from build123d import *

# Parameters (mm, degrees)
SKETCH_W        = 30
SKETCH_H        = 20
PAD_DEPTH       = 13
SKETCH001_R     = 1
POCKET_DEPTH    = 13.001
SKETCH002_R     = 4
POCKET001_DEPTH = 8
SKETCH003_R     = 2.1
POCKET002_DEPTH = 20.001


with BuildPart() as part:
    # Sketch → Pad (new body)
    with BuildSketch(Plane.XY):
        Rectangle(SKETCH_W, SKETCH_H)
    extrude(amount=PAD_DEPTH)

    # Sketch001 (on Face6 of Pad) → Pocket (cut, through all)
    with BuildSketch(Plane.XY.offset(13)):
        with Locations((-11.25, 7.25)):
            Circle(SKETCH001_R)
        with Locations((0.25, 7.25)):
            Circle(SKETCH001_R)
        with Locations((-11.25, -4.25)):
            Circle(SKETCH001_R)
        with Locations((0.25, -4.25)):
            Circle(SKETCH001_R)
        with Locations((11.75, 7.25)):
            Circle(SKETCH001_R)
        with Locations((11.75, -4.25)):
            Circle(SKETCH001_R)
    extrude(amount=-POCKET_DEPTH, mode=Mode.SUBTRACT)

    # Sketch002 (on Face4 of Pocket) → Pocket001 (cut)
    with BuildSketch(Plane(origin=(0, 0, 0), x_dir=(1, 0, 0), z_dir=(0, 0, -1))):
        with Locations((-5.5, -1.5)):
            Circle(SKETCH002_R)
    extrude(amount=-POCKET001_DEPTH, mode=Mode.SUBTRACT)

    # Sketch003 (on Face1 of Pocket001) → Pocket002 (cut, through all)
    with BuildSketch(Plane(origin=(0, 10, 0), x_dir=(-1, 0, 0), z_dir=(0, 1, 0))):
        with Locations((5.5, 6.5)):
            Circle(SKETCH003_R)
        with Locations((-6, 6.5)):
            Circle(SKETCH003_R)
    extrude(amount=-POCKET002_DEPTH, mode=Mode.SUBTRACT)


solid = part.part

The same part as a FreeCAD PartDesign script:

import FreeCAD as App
import Part
import Sketcher
Q = App.Units.Quantity

doc = App.newDocument("Part")
body = doc.addObject("PartDesign::Body", "Body")

# Sketch on XY plane
sketch1 = body.newObject("Sketcher::SketchObject", "Sketch")
sketch1.AttachmentSupport = (doc.getObject("XY_Plane"), [""])
sketch1.MapMode = "FlatFace"
sketch1.addGeometry([
    Part.LineSegment(App.Vector(-15, 10, 0), App.Vector(-15, -10, 0)),
    Part.LineSegment(App.Vector(-15, -10, 0), App.Vector(15, -10, 0)),
    Part.LineSegment(App.Vector(15, -10, 0), App.Vector(15, 10, 0)),
    Part.LineSegment(App.Vector(15, 10, 0), App.Vector(-15, 10, 0)),
], False)
sketch1.addConstraint([
    Sketcher.Constraint("Coincident", 0, 2, 1, 1),
    Sketcher.Constraint("Coincident", 1, 2, 2, 1),
    Sketcher.Constraint("Coincident", 2, 2, 3, 1),
    Sketcher.Constraint("Coincident", 3, 2, 0, 1),
    Sketcher.Constraint("Vertical", 0),
    Sketcher.Constraint("Horizontal", 1),
    Sketcher.Constraint("Vertical", 2),
    Sketcher.Constraint("Horizontal", 3),
    Sketcher.Constraint("Symmetric", 0, 2, 2, 2, -1, 1),
    Sketcher.Constraint("DistanceX", 1, 1, 1, 2, Q("30 mm")),
    Sketcher.Constraint("DistanceY", 0, 2, 0, 1, Q("20 mm")),
])
pad1 = body.newObject("PartDesign::Pad", "Pad")
pad1.Profile = sketch1
pad1.Length = 13

# Sketch on XY plane
sketch2 = body.newObject("Sketcher::SketchObject", "Sketch001")
sketch2.AttachmentSupport = (doc.getObject("XY_Plane"), [""])
sketch2.MapMode = "FlatFace"
sketch2.AttachmentOffset = App.Placement(App.Vector(0, 0, 13), App.Rotation())
sketch2.addGeometry([
    Part.Circle(App.Vector(-11.25, 7.25, 0), App.Vector(0, 0, 1), 1),  # 0
    Part.Circle(App.Vector(0.25, 7.25, 0), App.Vector(0, 0, 1), 1),  # 1
    Part.Circle(App.Vector(-11.25, -4.25, 0), App.Vector(0, 0, 1), 1),  # 2
    Part.Circle(App.Vector(0.25, -4.25, 0), App.Vector(0, 0, 1), 1),  # 3
    Part.Circle(App.Vector(11.75, 7.25, 0), App.Vector(0, 0, 1), 1),  # 4
    Part.Circle(App.Vector(11.75, -4.25, 0), App.Vector(0, 0, 1), 1),  # 5
], False)
sketch2.addConstraint([
    Sketcher.Constraint("Equal", 0, 1),
    Sketcher.Constraint("Equal", 1, 2),
    Sketcher.Constraint("Equal", 2, 3),
    Sketcher.Constraint("Equal", 3, 4),
    Sketcher.Constraint("Equal", 4, 5),
    Sketcher.Constraint("Horizontal", 0, 3, 1, 3),
    Sketcher.Constraint("Horizontal", 2, 3, 3, 3),
    Sketcher.Constraint("Horizontal", 1, 3, 4, 3),
    Sketcher.Constraint("Horizontal", 3, 3, 5, 3),
    Sketcher.Constraint("Vertical", 0, 3, 2, 3),
    Sketcher.Constraint("Vertical", 1, 3, 3, 3),
    Sketcher.Constraint("Vertical", 4, 3, 5, 3),
    Sketcher.Constraint("Diameter", 0, Q("2 mm")),
    Sketcher.Constraint("DistanceX", 0, 3, 4, 3, Q("23 mm")),
    Sketcher.Constraint("DistanceX", 0, 3, 1, 3, Q("11.5 mm")),
    Sketcher.Constraint("DistanceY", 2, 3, 0, 3, Q("11.5 mm")),
    Sketcher.Constraint("DistanceX", 0, 3, -1, 1, Q("11.25 mm")),
    Sketcher.Constraint("DistanceY", -1, 1, 0, 3, Q("7.25 mm")),
])
pocket1 = body.newObject("PartDesign::Pocket", "Pocket")
pocket1.Profile = sketch2
pocket1.Type = "ThroughAll"

# Sketch on XY plane
sketch3 = body.newObject("Sketcher::SketchObject", "Sketch002")
sketch3.AttachmentSupport = (doc.getObject("XY_Plane"), [""])
sketch3.MapMode = "FlatFace"
sketch3.addGeometry(Part.Circle(App.Vector(-5.5, 1.5, 0), App.Vector(0, 0, 1), 4), False)
sketch3.addConstraint([
    Sketcher.Constraint("Diameter", 0, Q("8 mm")),
    Sketcher.Constraint("DistanceX", 0, 3, -1, 1, Q("5.5 mm")),
    Sketcher.Constraint("DistanceY", -1, 1, 0, 3, Q("1.5 mm")),
])
pocket2 = body.newObject("PartDesign::Pocket", "Pocket001")
pocket2.Profile = sketch3
pocket2.Length = 8
pocket2.Reversed = True

# Sketch on XZ plane
sketch4 = body.newObject("Sketcher::SketchObject", "Sketch003")
sketch4.AttachmentSupport = (doc.getObject("XZ_Plane"), [""])
sketch4.MapMode = "FlatFace"
sketch4.AttachmentOffset = App.Placement(App.Vector(0, 0, -10), App.Rotation())
sketch4.addGeometry([
    Part.Circle(App.Vector(-5.5, 6.5, 0), App.Vector(0, 0, 1), 2.1),
    Part.Circle(App.Vector(6, 6.5, 0), App.Vector(0, 0, 1), 2.1),
], False)
sketch4.addConstraint([
    Sketcher.Constraint("Equal", 0, 1),
    Sketcher.Constraint("Horizontal", 0, 3, 1, 3),
    Sketcher.Constraint("Diameter", 0, Q("4.2 mm")),
    Sketcher.Constraint("DistanceX", -1, 1, 1, 3, Q("6 mm")),
    Sketcher.Constraint("DistanceX", 0, 3, -1, 1, Q("5.5 mm")),
    Sketcher.Constraint("DistanceY", -1, 1, 0, 3, Q("6.5 mm")),
])
pocket3 = body.newObject("PartDesign::Pocket", "Pocket002")
pocket3.Profile = sketch4
pocket3.Type = "ThroughAll"
pocket3.Reversed = True

doc.recompute()
